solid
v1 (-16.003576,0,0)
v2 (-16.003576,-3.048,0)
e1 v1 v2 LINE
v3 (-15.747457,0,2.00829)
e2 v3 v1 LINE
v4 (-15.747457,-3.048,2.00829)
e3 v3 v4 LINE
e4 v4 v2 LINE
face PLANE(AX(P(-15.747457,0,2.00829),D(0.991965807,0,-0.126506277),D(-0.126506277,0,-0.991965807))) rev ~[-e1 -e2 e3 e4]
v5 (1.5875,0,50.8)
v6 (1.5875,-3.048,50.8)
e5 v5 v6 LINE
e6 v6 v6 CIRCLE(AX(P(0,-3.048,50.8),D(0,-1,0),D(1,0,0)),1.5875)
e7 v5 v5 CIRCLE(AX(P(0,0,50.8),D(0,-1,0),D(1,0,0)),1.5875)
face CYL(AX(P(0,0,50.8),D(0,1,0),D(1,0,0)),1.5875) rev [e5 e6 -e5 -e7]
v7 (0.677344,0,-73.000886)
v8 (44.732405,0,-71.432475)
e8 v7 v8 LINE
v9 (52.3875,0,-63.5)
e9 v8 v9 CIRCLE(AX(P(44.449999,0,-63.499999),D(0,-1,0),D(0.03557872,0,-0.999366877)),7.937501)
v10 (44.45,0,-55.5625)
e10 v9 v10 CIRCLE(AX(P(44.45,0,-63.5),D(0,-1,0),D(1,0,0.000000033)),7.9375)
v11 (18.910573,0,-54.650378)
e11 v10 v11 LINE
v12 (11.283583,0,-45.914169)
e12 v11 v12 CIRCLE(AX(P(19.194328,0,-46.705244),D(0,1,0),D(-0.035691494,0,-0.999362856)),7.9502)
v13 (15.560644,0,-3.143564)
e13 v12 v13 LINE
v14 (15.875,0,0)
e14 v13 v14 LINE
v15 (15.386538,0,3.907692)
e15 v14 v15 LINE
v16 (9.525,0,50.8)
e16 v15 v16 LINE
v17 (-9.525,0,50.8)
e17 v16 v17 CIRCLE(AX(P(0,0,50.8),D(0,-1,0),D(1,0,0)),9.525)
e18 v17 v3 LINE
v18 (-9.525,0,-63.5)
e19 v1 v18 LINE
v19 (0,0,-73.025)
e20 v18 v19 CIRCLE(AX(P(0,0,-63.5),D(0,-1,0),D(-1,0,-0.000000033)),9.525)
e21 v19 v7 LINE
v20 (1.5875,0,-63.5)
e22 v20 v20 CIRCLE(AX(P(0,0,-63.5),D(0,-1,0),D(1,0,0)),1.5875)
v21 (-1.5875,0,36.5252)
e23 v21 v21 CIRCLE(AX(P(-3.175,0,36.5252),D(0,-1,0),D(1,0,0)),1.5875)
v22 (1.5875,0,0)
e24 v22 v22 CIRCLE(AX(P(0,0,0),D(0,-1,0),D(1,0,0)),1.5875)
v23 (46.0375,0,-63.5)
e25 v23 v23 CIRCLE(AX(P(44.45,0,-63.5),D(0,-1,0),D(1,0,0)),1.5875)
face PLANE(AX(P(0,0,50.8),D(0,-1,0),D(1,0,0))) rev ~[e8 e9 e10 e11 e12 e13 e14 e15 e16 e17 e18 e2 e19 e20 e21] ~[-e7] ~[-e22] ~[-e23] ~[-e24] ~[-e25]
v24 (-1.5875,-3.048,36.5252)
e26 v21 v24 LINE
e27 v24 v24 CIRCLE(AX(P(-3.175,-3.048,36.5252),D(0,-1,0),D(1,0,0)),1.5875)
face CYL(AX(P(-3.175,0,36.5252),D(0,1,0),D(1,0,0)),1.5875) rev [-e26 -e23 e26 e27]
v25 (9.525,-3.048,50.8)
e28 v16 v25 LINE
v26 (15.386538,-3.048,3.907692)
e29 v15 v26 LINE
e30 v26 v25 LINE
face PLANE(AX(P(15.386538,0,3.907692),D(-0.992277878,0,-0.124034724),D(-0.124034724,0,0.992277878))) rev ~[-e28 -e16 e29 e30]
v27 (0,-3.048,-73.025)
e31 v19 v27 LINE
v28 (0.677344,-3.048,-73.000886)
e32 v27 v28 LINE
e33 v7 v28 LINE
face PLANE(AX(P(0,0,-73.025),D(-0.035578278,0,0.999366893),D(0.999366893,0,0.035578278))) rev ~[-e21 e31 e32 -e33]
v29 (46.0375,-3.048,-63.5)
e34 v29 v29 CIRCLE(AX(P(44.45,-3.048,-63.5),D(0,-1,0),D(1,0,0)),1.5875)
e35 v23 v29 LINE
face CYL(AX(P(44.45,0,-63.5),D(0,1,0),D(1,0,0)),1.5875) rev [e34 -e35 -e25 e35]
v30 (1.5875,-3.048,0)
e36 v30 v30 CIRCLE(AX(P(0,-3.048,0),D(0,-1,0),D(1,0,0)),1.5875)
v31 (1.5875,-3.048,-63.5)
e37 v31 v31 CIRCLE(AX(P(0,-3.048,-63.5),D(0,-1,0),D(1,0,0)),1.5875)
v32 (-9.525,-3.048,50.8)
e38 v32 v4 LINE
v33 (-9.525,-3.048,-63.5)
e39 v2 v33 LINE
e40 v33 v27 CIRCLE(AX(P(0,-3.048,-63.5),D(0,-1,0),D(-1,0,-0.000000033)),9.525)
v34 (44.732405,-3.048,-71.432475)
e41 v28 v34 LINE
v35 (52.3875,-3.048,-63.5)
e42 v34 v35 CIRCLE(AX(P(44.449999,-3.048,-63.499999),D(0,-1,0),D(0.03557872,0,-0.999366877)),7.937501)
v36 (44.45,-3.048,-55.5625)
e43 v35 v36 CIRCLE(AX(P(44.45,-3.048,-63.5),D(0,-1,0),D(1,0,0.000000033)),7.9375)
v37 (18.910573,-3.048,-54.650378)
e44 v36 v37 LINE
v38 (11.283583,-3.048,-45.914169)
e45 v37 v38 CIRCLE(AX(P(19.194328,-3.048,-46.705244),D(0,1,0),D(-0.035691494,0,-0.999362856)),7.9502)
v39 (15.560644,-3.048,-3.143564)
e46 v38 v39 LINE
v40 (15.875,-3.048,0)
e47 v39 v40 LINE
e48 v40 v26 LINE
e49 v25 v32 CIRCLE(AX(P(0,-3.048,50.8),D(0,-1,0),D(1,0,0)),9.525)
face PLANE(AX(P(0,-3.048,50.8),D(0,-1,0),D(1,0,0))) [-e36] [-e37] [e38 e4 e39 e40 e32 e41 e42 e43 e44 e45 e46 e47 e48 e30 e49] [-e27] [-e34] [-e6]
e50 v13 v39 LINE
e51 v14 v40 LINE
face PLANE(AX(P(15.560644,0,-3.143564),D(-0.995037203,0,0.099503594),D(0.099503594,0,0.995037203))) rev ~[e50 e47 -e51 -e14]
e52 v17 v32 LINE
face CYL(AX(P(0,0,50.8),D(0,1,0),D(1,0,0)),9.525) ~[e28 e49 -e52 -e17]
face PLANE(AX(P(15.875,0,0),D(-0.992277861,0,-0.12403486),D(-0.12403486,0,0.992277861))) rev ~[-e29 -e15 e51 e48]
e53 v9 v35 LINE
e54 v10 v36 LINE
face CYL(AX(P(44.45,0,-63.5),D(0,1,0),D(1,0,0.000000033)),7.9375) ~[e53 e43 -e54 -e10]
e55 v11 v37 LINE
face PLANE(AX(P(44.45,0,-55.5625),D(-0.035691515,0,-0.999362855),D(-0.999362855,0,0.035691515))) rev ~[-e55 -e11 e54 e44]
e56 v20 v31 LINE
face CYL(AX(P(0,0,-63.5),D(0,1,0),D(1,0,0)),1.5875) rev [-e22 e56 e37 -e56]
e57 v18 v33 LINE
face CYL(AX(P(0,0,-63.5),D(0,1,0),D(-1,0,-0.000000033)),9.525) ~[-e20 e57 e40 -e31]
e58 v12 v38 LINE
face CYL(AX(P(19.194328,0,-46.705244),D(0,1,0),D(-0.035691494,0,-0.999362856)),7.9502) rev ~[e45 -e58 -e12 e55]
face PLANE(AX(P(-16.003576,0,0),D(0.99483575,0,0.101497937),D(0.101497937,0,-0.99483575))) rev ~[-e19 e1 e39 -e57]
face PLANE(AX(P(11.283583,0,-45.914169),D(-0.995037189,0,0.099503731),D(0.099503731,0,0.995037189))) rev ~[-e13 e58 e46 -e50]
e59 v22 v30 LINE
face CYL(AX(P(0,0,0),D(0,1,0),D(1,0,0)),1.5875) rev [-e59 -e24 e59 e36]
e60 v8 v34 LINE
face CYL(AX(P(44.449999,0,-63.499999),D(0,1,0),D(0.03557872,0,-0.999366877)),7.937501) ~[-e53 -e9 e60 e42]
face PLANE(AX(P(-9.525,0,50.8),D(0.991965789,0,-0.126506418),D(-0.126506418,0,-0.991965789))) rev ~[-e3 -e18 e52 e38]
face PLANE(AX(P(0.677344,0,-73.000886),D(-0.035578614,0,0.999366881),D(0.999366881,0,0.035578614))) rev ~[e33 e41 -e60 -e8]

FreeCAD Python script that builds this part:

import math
import FreeCAD as App
import Part
import Sketcher
from FreeCAD import Vector
Q = App.Units.Quantity

doc = App.newDocument("Part")
body = doc.addObject("PartDesign::Body", "Body")

# Sketch on XZ plane
sketch1 = body.newObject("Sketcher::SketchObject", "Sketch")
sketch1.AttachmentSupport = (doc.getObject("XZ_Plane"), [""])
sketch1.MapMode = "FlatFace"
sketch1.addGeometry([
    Part.ArcOfCircle(Part.Circle(Vector(0, 50.8, 0), Vector(0, 0, 1), 9.525), math.radians(0), math.radians(180)),  # 0
    Part.LineSegment(Vector(-9.525, 50.8, 0), Vector(-15.747457, 2.00829, 0)),  # 1
    Part.LineSegment(Vector(-15.747457, 2.00829, 0), Vector(-16.003576, 0, 0)),  # 2
    Part.LineSegment(Vector(-16.003576, 0, 0), Vector(-9.525, -63.5, 0)),  # 3
    Part.ArcOfCircle(Part.Circle(Vector(0, -63.5, 0), Vector(0, 0, 1), 9.525), math.radians(-179.999998), math.radians(-90.000002)),  # 4
    Part.LineSegment(Vector(0, -73.025, 0), Vector(0.677344, -73.000886, 0)),  # 5
    Part.LineSegment(Vector(0.677344, -73.000886, 0), Vector(44.732405, -71.432475, 0)),  # 6
    Part.ArcOfCircle(Part.Circle(Vector(44.449999, -63.499999, 0), Vector(0, 0, 1), 7.937501), math.radians(-87.961059), math.radians(-0.000005)),  # 7
    Part.ArcOfCircle(Part.Circle(Vector(44.45, -63.5, 0), Vector(0, 0, 1), 7.9375), math.radians(0.000002), math.radians(89.999998)),  # 8
    Part.LineSegment(Vector(44.45, -55.5625, 0), Vector(18.910573, -54.650378, 0)),  # 9
    Part.ArcOfCircle(Part.Circle(Vector(19.194328, -46.705244, 0), Vector(0, 0, 1), 7.9502), math.radians(174.289406), math.radians(267.954594)),  # 10
    Part.LineSegment(Vector(11.283583, -45.914169, 0), Vector(15.560644, -3.143564, 0)),  # 11
    Part.LineSegment(Vector(15.560644, -3.143564, 0), Vector(15.875, 0, 0)),  # 12
    Part.LineSegment(Vector(15.875, 0, 0), Vector(15.386538, 3.907692, 0)),  # 13
    Part.LineSegment(Vector(15.386538, 3.907692, 0), Vector(9.525, 50.8, 0)),  # 14
    Part.Circle(Vector(0, -63.5, 0), Vector(0, 0, 1), 1.5875),  # 15
    Part.Circle(Vector(44.45, -63.5, 0), Vector(0, 0, 1), 1.5875),  # 16
    Part.Circle(Vector(0, 0, 0), Vector(0, 0, 1), 1.5875),  # 17
    Part.Circle(Vector(-3.175, 36.5252, 0), Vector(0, 0, 1), 1.5875),  # 18
    Part.Circle(Vector(0, 50.8, 0), Vector(0, 0, 1), 1.5875),  # 19
], False)
sketch1.addConstraint([
    Sketcher.Constraint("Coincident", 0, 2, 1, 1),
    Sketcher.Constraint("Coincident", 1, 2, 2, 1),
    Sketcher.Constraint("Coincident", 2, 2, 3, 1),
    Sketcher.Constraint("Coincident", 3, 2, 4, 1),
    Sketcher.Constraint("Coincident", 4, 2, 5, 1),
    Sketcher.Constraint("Coincident", 5, 2, 6, 1),
    Sketcher.Constraint("Coincident", 6, 2, 7, 1),
    Sketcher.Constraint("Coincident", 7, 2, 8, 1),
    Sketcher.Constraint("Coincident", 8, 2, 9, 1),
    Sketcher.Constraint("Coincident", 9, 2, 10, 2),
    Sketcher.Constraint("Coincident", 10, 1, 11, 1),
    Sketcher.Constraint("Coincident", 11, 2, 12, 1),
    Sketcher.Constraint("Coincident", 12, 2, 13, 1),
    Sketcher.Constraint("Coincident", 13, 2, 14, 1),
    Sketcher.Constraint("Coincident", 14, 2, 0, 1),
    Sketcher.Constraint("Coincident", 17, 3, -1, 1),
    Sketcher.Constraint("Coincident", 8, 3, 7, 3),
    Sketcher.Constraint("Coincident", 15, 3, 4, 3),
    Sketcher.Constraint("Coincident", 16, 3, 7, 3),
    Sketcher.Constraint("Coincident", 19, 3, 0, 3),
    Sketcher.Constraint("PointOnObject", 0, 3, -2),
    Sketcher.Constraint("PointOnObject", 4, 3, -2),
    Sketcher.Constraint("PointOnObject", 2, 2, -1),
    Sketcher.Constraint("PointOnObject", 4, 2, -2),
    Sketcher.Constraint("PointOnObject", 12, 2, -1),
    Sketcher.Constraint("Diameter", 15, Q("0.125 in")),
    Sketcher.Constraint("Diameter", 16, Q("0.125 in")),
    Sketcher.Constraint("Diameter", 17, Q("0.125 in")),
    Sketcher.Constraint("Diameter", 18, Q("0.125 in")),
    Sketcher.Constraint("Diameter", 19, Q("0.125 in")),
    Sketcher.Constraint("DistanceY", -1, 1, 0, 3, Q("2 in")),
    Sketcher.Constraint("DistanceY", -1, 1, 0, 2, Q("2 in")),
    Sketcher.Constraint("DistanceY", -1, 1, 14, 2, Q("2 in")),
    Sketcher.Constraint("Radius", 0, Q("0.375 in")),
    Sketcher.Constraint("Radius", 4, Q("0.375 in")),
    Sketcher.Constraint("Radius", 7, Q("0.3125 in")),
    Sketcher.Constraint("Radius", 10, Q("0.313 in")),
    Sketcher.Constraint("DistanceY", 4, 3, -1, 1, Q("2.5 in")),
    Sketcher.Constraint("DistanceY", 7, 3, -1, 1, Q("2.5 in")),
    Sketcher.Constraint("DistanceY", 3, 2, -1, 1, Q("2.5 in")),
    Sketcher.Constraint("DistanceY", 7, 2, -1, 1, Q("2.5 in")),
    Sketcher.Constraint("DistanceX", 18, 3, 14, 2, Q("0.5 in")),
    Sketcher.Constraint("DistanceX", -1, 1, 7, 3, Q("1.75 in")),
    Sketcher.Constraint("DistanceX", -1, 1, 8, 2, Q("1.75 in")),
    Sketcher.Constraint("DistanceX", 18, 3, 12, 2, Q("0.75 in")),
    Sketcher.Constraint("DistanceY", -1, 1, 18, 3, Q("1.438 in")),
    Sketcher.Constraint("DistanceX", 1, 2, 11, 2, Q("31.308101 mm")),
    Sketcher.Constraint("DistanceY", 1, 2, 13, 2, Q("1.899402 mm")),
    Sketcher.Constraint("Distance", 6, Q("44.082971 mm")),
    Sketcher.Constraint("Distance", 9, Q("25.55571 mm")),
    Sketcher.Constraint("DistanceY", -1, 1, 1, 2, Q("2.00829 mm")),
    Sketcher.Constraint("DistanceY", 9, 2, -1, 1, Q("54.650378 mm")),
    Sketcher.Constraint("DistanceY", 10, 1, -1, 1, Q("45.914169 mm")),
    Sketcher.Constraint("DistanceX", 10, 3, 7, 3, Q("25.255671 mm")),
    Sketcher.Constraint("DistanceX", 2, 2, 1, 2, Q("0.256119 mm")),
    Sketcher.Constraint("DistanceY", 6, 2, 10, 3, Q("24.727231 mm")),
    Sketcher.Constraint("DistanceX", 5, 2, 6, 2, Q("44.055061 mm")),
    Sketcher.Constraint("DistanceX", 10, 1, 11, 2, Q("4.277061 mm")),
    Sketcher.Constraint("DistanceY", 10, 3, 11, 2, Q("43.56168 mm")),
    Sketcher.Constraint("Distance", 13, Q("3.938103 mm")),
])
pad1 = body.newObject("PartDesign::Pad", "Pad")
pad1.Profile = sketch1
pad1.Length = Q("0.12 in")

doc.recompute()
